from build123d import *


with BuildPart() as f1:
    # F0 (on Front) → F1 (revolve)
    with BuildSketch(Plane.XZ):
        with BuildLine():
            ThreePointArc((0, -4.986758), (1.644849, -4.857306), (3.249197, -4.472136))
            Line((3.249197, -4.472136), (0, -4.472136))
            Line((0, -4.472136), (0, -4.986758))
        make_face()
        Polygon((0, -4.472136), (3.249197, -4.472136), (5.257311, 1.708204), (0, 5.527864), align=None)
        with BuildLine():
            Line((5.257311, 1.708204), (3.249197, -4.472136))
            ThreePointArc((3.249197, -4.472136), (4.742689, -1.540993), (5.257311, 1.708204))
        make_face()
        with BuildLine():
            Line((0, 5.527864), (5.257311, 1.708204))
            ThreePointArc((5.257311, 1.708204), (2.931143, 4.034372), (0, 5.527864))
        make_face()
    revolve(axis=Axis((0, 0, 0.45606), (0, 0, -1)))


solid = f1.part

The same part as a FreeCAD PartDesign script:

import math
import FreeCAD as App
import Part
import Sketcher

V = App.Vector

doc = App.newDocument("Part")
body = doc.addObject("PartDesign::Body", "Body")

# Sketch on XZ plane
sketch1 = doc.addObject("Sketcher::SketchObject", "Sketch")
body.addObject(sketch1)
sketch1.AttachmentSupport = (doc.XZ_Plane, [""])
sketch1.MapMode = "FlatFace"
sketch1.addGeometry([
    Part.ArcOfCircle(Part.Circle(V(0, 5.5, 0), V(0, 0, 1), 10.5), math.radians(-90), math.radians(-72)),
    Part.ArcOfCircle(Part.Circle(V(-5.3, 1.7, 0), V(0, 0, 1), 10.5), math.radians(-36), math.radians(0)),
    Part.ArcOfCircle(Part.Circle(V(-3.2, -4.5, 0), V(0, 0, 1), 10.5), math.radians(36), math.radians(72)),
    Part.LineSegment(V(0, 5.5, 0), V(0, -5, 0)),
], False)
sketch1.addConstraint([
    Sketcher.Constraint("Coincident", 0, 2, 1, 1),
    Sketcher.Constraint("Coincident", 1, 2, 2, 1),
    Sketcher.Constraint("Coincident", 2, 2, 3, 1),
    Sketcher.Constraint("Coincident", 3, 2, 0, 1),
    Sketcher.Constraint("Vertical", 3),
    Sketcher.Constraint("PointOnObject", 2, 2, -2),
    Sketcher.Constraint("Horizontal", 2, 3, 0, 2),
    Sketcher.Constraint("DistanceY", 0, 2, 2, 2, 10.0),
    Sketcher.Constraint("Radius", 0, 10.5146),
    Sketcher.Constraint("Radius", 1, 10.51462),
    Sketcher.Constraint("Radius", 2, 10.514622),
    Sketcher.Constraint("DistanceY", 3, 2, 3, 1, 10.514622),
    Sketcher.Constraint("DistanceX", 2, 3, 0, 3, 3.249201),
    Sketcher.Constraint("DistanceX", 1, 3, -1, 1, 5.257309),
    Sketcher.Constraint("DistanceY", -1, 1, 0, 3, 5.527842),
])
revolution = doc.addObject("PartDesign::Revolution", "Revolution")
body.addObject(revolution)
revolution.Profile = sketch1
revolution.ReferenceAxis = (sketch1, ["V_Axis"])
revolution.Angle = 360

doc.recompute()
